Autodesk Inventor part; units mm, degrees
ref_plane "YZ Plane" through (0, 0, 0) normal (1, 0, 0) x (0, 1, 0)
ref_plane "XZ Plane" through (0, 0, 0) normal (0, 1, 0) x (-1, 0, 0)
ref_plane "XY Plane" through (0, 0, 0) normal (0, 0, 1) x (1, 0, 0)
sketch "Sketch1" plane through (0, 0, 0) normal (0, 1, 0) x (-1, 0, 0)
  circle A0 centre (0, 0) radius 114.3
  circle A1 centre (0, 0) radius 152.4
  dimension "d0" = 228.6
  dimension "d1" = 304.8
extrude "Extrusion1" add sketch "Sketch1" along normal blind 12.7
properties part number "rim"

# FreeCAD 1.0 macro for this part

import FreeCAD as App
import Part
import Sketcher
Q = App.Units.Quantity

doc = App.newDocument("Part")
body = doc.addObject("PartDesign::Body", "Body")

sketch1 = doc.addObject("Sketcher::SketchObject", "Sketch")
body.addObject(sketch1)
sketch1.AttachmentSupport = (doc.XZ_Plane, [""])
sketch1.MapMode = "FlatFace"
sketch1.addGeometry(Part.Circle(App.Vector(0, 0, 0), App.Vector(0, 0, 1), 152), False)
sketch1.addGeometry(Part.Circle(App.Vector(0, 0, 0), App.Vector(0, 0, 1), 114), False)
sketch1.addConstraint(Sketcher.Constraint("Coincident", 0, 3, -1, 1))
sketch1.addConstraint(Sketcher.Constraint("Coincident", 1, 3, -1, 1))
sketch1.addConstraint(Sketcher.Constraint("Diameter", 0, Q("12 in")))
sketch1.addConstraint(Sketcher.Constraint("Diameter", 1, Q("9 in")))
pad1 = doc.addObject("PartDesign::Pad", "Pad")
body.addObject(pad1)
pad1.Profile = sketch1
pad1.Length = Q("0.5 in")
pad1.Reversed = True

doc.recompute()
